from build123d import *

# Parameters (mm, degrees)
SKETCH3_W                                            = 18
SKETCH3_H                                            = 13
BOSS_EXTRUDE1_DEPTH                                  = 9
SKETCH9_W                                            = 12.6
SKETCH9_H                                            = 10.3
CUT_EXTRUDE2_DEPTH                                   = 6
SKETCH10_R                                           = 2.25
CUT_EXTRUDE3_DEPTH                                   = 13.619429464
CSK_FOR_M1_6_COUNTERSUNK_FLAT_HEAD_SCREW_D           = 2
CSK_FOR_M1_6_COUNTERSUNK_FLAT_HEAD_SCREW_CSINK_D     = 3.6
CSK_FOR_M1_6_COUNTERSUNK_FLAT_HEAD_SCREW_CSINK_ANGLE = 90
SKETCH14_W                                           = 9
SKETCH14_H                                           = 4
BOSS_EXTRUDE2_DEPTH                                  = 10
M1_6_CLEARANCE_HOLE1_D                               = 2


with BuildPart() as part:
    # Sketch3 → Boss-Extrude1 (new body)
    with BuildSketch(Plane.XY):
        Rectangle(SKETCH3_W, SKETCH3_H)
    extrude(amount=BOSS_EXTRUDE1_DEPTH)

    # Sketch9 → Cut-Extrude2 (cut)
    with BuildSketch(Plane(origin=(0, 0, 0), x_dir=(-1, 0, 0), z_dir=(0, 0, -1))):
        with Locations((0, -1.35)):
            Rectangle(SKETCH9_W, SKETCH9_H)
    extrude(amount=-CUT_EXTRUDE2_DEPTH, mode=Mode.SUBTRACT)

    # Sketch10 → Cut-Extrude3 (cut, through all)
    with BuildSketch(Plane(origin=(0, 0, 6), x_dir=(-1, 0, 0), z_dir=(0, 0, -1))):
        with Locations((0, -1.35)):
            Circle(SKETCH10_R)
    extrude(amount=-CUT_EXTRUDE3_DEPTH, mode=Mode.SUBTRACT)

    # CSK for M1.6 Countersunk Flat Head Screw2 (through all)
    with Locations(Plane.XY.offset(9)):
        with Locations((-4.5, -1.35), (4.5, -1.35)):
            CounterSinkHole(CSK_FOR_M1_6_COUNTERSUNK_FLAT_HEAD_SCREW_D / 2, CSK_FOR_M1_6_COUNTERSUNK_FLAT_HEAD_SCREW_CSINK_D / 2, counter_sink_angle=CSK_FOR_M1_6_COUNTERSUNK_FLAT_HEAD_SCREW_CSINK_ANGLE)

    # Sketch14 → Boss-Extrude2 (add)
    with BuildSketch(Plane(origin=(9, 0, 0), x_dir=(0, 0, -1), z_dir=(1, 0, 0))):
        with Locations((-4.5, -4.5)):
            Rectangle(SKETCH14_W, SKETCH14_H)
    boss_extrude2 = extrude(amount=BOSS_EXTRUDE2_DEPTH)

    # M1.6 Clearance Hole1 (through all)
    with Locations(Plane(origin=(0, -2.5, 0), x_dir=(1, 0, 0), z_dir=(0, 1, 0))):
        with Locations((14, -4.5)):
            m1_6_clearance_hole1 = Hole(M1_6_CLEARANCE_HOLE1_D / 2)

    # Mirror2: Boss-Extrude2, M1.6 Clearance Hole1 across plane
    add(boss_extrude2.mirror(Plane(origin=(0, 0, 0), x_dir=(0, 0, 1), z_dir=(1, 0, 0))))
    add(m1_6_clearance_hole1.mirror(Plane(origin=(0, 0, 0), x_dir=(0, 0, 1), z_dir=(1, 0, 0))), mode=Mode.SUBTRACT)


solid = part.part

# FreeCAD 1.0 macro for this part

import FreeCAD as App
import Part
import Sketcher


def add_polygon(sketch, points):
    """Adds a closed chain of lines whose ends are joined by coincident constraints."""
    first, n = sketch.GeometryCount, len(points)
    for a, b in zip(points, points[1:] + points[:1]):
        sketch.addGeometry(Part.LineSegment(App.Vector(*a, 0), App.Vector(*b, 0)), False)
    for i in range(n):
        sketch.addConstraint(Sketcher.Constraint("Coincident", first + i, 2, first + (i + 1) % n, 1))

doc = App.newDocument("Part")
params = doc.addObject("Spreadsheet::Sheet", "Params")
for row, (alias, value) in enumerate([
    ("sketch1_width", "18 mm"),
    ("sketch1_height", "13 mm"),
    ("pad1_length", "9 mm"),
    ("sketch2_width", "12.6 mm"),
    ("sketch2_height", "10.3 mm"),
    ("pocket1_length", "6 mm"),
    ("sketch3_diameter", "4.5 mm"),
    ("sketch4_diameter", "2 mm"),
    ("hole_diameter", "2 mm"),
    ("hole_csink_diameter", "3.6 mm"),
    ("sketch5_width", "4 mm"),
    ("sketch5_height", "9 mm"),
    ("pad2_length", "10 mm"),
    ("sketch6_diameter", "2 mm"),
    ("hole2_diameter", "2 mm"),
], start=1):
    params.set(f"A{row}", alias)
    params.set(f"B{row}", "=" + value)
    params.setAlias(f"B{row}", alias)

body = doc.addObject("PartDesign::Body", "Body")

# Sketch on XY plane
sketch1 = body.newObject("Sketcher::SketchObject", "Sketch")
sketch1.AttachmentSupport = (doc.getObject("XY_Plane"), [""])
sketch1.MapMode = "FlatFace"
add_polygon(sketch1, [(-9, 6.5), (-9, -6.5), (9, -6.5), (9, 6.5)])  # lines 0-3
sketch1.addConstraint([
    Sketcher.Constraint("Vertical", 0),
    Sketcher.Constraint("Horizontal", 1),
    Sketcher.Constraint("Vertical", 2),
    Sketcher.Constraint("Horizontal", 3),
    Sketcher.Constraint("Symmetric", 0, 2, 2, 2, -1, 1),
    Sketcher.Constraint("DistanceX", 1, 1, 1, 2, 18.0),
    Sketcher.Constraint("DistanceY", 0, 2, 0, 1, 13.0),
])
sketch1.setExpression("Constraints[9]", "Params.sketch1_width")
sketch1.setExpression("Constraints[10]", "Params.sketch1_height")
pad1 = body.newObject("PartDesign::Pad", "Pad")
pad1.Profile = sketch1
pad1.setExpression("Length", "Params.pad1_length")

# Sketch on XY plane
sketch2 = body.newObject("Sketcher::SketchObject", "Sketch001")
sketch2.AttachmentSupport = (doc.getObject("XY_Plane"), [""])
sketch2.MapMode = "FlatFace"
add_polygon(sketch2, [(6.3, 3.8), (6.3, -6.5), (-6.3, -6.5), (-6.3, 3.8)])  # lines 0-3
sketch2.addConstraint([
    Sketcher.Constraint("Vertical", 0),
    Sketcher.Constraint("Horizontal", 1),
    Sketcher.Constraint("Vertical", 2),
    Sketcher.Constraint("Horizontal", 3),
    Sketcher.Constraint("DistanceX", 1, 2, 1, 1, 12.6),
    Sketcher.Constraint("DistanceY", 0, 2, 0, 1, 10.3),
    Sketcher.Constraint("DistanceX", -1, 1, 0, 2, 6.3),
    Sketcher.Constraint("DistanceY", 0, 2, -1, 1, 6.5),
])
sketch2.setExpression("Constraints[8]", "Params.sketch2_width")
sketch2.setExpression("Constraints[9]", "Params.sketch2_height")
pocket1 = body.newObject("PartDesign::Pocket", "Pocket")
pocket1.Profile = sketch2
pocket1.setExpression("Length", "Params.pocket1_length")
pocket1.Reversed = True

# Sketch on XY plane
sketch3 = body.newObject("Sketcher::SketchObject", "Sketch002")
sketch3.AttachmentSupport = (doc.getObject("XY_Plane"), [""])
sketch3.MapMode = "FlatFace"
sketch3.AttachmentOffset = App.Placement(App.Vector(0, 0, 6), App.Rotation())
sketch3.addGeometry(Part.Circle(App.Vector(0, -1.35, 0), App.Vector(0, 0, 1), 2.25), False)
sketch3.addConstraint([
    Sketcher.Constraint("PointOnObject", 0, 3, -2),
    Sketcher.Constraint("Diameter", 0, 4.5),
    Sketcher.Constraint("DistanceY", 0, 3, -1, 1, 1.35),
])
sketch3.setExpression("Constraints[1]", "Params.sketch3_diameter")
pocket2 = body.newObject("PartDesign::Pocket", "Pocket001")
pocket2.Profile = sketch3
pocket2.Type = "ThroughAll"
pocket2.Reversed = True

# Sketch on XY plane
sketch4 = body.newObject("Sketcher::SketchObject", "Sketch003")
sketch4.AttachmentSupport = (doc.getObject("XY_Plane"), [""])
sketch4.MapMode = "FlatFace"
sketch4.AttachmentOffset = App.Placement(App.Vector(0, 0, 9), App.Rotation())
sketch4.addGeometry([
    Part.Circle(App.Vector(-4.5, -1.35, 0), App.Vector(0, 0, 1), 1),
    Part.Circle(App.Vector(4.5, -1.35, 0), App.Vector(0, 0, 1), 1),
], False)
sketch4.addConstraint([
    Sketcher.Constraint("Equal", 0, 1),
    Sketcher.Constraint("Symmetric", 0, 3, 1, 3, -2),
    Sketcher.Constraint("Diameter", 0, 2.0),
    Sketcher.Constraint("DistanceX", 0, 3, 1, 3, 9.0),
    Sketcher.Constraint("DistanceY", 0, 3, -1, 1, 1.35),
])
sketch4.setExpression("Constraints[2]", "Params.sketch4_diameter")
doc.recompute()
hole = body.newObject("PartDesign::Hole", "Hole")
hole.Profile = sketch4
hole.ThreadType = "None"
hole.setExpression("Diameter", "Params.hole_diameter")
hole.DepthType = "ThroughAll"
hole.HoleCutType = "Countersink"
hole.setExpression("HoleCutDiameter", "Params.hole_csink_diameter")
hole.HoleCutCountersinkAngle = 90

# Sketch on YZ plane
sketch5 = body.newObject("Sketcher::SketchObject", "Sketch004")
sketch5.AttachmentSupport = (doc.getObject("YZ_Plane"), [""])
sketch5.MapMode = "FlatFace"
sketch5.AttachmentOffset = App.Placement(App.Vector(0, 0, 9), App.Rotation())
add_polygon(sketch5, [(-2.5, 9), (-6.5, 9), (-6.5, 0), (-2.5, 0)])  # lines 0-3
sketch5.addConstraint([
    Sketcher.Constraint("Horizontal", 0),
    Sketcher.Constraint("Vertical", 1),
    Sketcher.Constraint("Horizontal", 2),
    Sketcher.Constraint("Vertical", 3),
    Sketcher.Constraint("PointOnObject", 1, 2, -1),
    Sketcher.Constraint("DistanceX", 0, 2, 0, 1, 4.0),
    Sketcher.Constraint("DistanceY", 1, 2, 1, 1, 9.0),
    Sketcher.Constraint("DistanceX", 0, 2, -1, 1, 6.5),
])
sketch5.setExpression("Constraints[9]", "Params.sketch5_width")
sketch5.setExpression("Constraints[10]", "Params.sketch5_height")
pad2 = body.newObject("PartDesign::Pad", "Pad001")
pad2.Profile = sketch5
pad2.setExpression("Length", "Params.pad2_length")

# Sketch on XZ plane
sketch6 = body.newObject("Sketcher::SketchObject", "Sketch005")
sketch6.AttachmentSupport = (doc.getObject("XZ_Plane"), [""])
sketch6.MapMode = "FlatFace"
sketch6.AttachmentOffset = App.Placement(App.Vector(0, 0, 2.5), App.Rotation())
sketch6.addGeometry(Part.Circle(App.Vector(14, 4.5, 0), App.Vector(0, 0, 1), 1), False)
sketch6.addConstraint([
    Sketcher.Constraint("Diameter", 0, 2.0),
    Sketcher.Constraint("DistanceX", -1, 1, 0, 3, 14.0),
    Sketcher.Constraint("DistanceY", -1, 1, 0, 3, 4.5),
])
sketch6.setExpression("Constraints[0]", "Params.sketch6_diameter")
doc.recompute()
hole2 = body.newObject("PartDesign::Hole", "Hole001")
hole2.Profile = sketch6
hole2.ThreadType = "None"
hole2.setExpression("Diameter", "Params.hole2_diameter")
hole2.DepthType = "ThroughAll"
hole2.Reversed = True
doc.recompute()

mirrored = body.newObject("PartDesign::Mirrored", "Mirrored")
mirrored.Originals = [pad2, hole2]
mirrored.MirrorPlane = (doc.getObject("YZ_Plane"), [""])
body.Tip = mirrored

doc.recompute()
